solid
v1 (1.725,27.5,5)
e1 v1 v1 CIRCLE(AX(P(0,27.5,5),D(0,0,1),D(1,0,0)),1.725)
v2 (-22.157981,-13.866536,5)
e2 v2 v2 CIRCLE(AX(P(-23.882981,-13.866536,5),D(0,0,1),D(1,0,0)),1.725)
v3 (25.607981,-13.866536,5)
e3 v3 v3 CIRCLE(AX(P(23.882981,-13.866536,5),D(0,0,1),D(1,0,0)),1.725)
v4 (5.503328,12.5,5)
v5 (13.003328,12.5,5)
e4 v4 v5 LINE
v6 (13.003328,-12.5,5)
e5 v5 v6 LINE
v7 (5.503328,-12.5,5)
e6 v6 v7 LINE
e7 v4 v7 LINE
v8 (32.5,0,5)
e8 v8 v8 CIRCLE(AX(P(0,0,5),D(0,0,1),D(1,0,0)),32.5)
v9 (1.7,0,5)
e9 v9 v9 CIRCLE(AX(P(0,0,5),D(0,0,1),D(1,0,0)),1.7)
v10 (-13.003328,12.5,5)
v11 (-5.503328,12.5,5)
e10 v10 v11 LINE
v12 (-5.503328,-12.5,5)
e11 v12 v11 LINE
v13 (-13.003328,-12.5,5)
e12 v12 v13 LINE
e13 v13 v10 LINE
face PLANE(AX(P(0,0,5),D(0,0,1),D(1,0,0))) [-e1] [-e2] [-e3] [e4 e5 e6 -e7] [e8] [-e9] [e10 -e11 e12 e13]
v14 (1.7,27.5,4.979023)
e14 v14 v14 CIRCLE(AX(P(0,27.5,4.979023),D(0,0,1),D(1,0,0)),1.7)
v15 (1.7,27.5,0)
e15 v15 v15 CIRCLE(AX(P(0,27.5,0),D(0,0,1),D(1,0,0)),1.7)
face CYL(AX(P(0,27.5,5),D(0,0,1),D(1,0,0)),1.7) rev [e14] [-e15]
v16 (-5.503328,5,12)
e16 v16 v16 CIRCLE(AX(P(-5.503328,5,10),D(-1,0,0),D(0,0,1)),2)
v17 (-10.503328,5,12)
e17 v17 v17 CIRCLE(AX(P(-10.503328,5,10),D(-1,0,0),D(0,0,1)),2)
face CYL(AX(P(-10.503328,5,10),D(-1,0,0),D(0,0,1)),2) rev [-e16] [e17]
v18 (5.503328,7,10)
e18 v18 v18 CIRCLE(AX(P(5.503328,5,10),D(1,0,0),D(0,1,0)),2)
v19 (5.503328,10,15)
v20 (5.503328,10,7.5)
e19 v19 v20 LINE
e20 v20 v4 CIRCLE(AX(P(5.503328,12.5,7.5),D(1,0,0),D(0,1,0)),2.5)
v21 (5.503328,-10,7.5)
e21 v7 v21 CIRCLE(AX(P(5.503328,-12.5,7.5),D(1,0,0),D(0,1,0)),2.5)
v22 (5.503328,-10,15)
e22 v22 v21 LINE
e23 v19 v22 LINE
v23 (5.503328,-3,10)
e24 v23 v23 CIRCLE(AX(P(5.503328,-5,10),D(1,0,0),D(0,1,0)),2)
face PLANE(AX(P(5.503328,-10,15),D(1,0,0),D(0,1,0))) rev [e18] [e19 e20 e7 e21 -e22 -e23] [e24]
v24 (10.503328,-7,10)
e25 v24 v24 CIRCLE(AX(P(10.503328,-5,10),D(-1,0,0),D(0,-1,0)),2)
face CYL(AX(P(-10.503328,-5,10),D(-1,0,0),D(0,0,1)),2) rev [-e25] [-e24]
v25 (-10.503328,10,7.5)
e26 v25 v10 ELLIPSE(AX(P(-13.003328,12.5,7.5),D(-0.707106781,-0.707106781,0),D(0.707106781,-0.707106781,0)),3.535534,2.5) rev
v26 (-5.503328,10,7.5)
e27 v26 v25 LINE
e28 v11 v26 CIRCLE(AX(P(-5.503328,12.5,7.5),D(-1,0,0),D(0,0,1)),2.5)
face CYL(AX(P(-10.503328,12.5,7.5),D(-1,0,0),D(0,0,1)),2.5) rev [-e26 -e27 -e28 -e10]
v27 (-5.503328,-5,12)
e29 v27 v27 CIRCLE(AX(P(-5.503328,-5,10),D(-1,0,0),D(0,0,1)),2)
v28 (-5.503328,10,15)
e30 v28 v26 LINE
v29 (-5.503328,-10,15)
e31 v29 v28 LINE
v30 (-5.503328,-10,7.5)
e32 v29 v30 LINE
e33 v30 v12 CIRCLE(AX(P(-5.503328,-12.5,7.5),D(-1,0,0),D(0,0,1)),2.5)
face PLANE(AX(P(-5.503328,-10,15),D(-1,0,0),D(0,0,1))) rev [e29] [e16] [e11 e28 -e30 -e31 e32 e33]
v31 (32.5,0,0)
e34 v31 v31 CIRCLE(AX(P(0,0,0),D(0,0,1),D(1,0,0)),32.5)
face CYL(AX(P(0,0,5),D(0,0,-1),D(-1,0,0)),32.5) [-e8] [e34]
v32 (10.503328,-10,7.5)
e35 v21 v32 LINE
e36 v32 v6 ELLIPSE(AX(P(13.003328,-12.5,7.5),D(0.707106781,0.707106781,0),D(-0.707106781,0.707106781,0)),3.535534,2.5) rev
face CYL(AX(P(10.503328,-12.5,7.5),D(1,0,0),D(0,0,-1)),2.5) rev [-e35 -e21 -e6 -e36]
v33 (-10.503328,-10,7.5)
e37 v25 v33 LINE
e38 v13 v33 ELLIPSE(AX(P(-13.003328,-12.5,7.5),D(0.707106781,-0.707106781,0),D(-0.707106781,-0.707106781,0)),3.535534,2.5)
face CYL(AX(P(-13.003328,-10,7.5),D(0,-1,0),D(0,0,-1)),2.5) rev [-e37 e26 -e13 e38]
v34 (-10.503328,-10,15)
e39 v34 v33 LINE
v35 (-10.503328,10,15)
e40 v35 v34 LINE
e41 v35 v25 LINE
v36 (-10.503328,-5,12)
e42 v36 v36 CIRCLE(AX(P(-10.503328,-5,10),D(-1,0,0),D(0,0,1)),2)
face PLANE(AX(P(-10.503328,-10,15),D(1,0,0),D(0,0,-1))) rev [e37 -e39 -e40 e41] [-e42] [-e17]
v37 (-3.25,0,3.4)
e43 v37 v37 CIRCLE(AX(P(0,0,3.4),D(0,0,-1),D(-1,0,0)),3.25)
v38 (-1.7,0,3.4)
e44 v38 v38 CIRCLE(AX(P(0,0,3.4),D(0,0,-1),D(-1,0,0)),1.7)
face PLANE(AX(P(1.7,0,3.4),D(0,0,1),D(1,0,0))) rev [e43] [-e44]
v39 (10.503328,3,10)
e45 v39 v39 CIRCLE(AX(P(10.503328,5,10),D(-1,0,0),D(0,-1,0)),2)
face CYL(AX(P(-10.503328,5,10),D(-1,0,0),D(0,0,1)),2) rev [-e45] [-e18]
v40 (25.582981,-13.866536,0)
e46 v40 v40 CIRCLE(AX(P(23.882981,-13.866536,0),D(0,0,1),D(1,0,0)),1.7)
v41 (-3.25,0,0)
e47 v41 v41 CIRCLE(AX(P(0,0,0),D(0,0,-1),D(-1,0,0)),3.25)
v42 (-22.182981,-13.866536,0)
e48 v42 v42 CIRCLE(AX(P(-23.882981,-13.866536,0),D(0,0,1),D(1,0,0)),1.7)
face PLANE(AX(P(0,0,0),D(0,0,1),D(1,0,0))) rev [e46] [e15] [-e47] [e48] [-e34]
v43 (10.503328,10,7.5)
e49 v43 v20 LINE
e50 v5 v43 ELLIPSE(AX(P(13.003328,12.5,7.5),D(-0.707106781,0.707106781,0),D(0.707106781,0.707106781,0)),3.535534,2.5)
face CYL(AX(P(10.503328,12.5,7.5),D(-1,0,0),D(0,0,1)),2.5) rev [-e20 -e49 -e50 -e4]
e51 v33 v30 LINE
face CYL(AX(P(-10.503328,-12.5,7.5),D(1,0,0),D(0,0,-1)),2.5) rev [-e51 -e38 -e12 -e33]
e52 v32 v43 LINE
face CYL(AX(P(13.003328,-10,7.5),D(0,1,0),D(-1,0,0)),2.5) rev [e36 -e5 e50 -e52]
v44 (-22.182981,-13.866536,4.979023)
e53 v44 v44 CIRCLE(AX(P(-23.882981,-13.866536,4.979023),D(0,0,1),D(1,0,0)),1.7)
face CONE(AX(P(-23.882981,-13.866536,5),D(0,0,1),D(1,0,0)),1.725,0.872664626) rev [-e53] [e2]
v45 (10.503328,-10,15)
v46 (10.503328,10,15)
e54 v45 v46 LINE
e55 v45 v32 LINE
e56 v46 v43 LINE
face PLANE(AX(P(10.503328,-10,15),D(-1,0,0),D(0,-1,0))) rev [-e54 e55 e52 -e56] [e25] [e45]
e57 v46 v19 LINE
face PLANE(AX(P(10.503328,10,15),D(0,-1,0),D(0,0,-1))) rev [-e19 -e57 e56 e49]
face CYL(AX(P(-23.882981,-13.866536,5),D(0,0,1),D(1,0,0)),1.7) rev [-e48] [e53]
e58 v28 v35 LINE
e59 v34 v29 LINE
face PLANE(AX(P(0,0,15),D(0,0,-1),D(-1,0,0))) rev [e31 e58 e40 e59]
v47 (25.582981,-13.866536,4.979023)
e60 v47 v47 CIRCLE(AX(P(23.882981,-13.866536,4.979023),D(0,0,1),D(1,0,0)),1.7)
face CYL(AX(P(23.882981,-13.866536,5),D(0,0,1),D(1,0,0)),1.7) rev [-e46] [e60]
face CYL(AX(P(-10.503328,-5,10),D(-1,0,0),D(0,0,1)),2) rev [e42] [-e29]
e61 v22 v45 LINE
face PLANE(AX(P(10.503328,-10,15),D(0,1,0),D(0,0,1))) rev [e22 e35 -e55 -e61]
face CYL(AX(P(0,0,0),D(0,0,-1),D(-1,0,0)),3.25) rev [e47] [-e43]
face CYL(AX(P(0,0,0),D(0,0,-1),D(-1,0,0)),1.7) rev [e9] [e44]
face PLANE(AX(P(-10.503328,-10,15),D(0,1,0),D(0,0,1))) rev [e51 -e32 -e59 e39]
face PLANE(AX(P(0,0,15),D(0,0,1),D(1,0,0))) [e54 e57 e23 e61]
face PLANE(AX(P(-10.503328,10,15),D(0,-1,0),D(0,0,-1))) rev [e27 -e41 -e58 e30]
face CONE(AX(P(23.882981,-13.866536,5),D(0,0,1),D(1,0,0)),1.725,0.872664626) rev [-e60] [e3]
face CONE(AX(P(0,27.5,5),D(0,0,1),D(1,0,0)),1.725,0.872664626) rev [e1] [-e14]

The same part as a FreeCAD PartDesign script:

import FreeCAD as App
import Part
import Sketcher
from FreeCAD import Vector
Q = App.Units.Quantity


def edges_at(feature, points):
    """Names of the edges that pass closest to the given points."""
    edges = feature.Shape.Edges
    near = lambda p: min(range(len(edges)), key=lambda i: edges[i].distToShape(Part.Vertex(*p))[0])
    return sorted({f"Edge{near(p) + 1}" for p in points})

doc = App.newDocument("Part")
params = doc.addObject("Spreadsheet::Sheet", "Params")
for row, (alias, value) in enumerate([
    ("sketch1_diameter", "65 mm"),
    ("pad1_length", "5 mm"),
    ("groove_angle", "360 deg"),
    ("sketch3_width", "5 mm"),
    ("sketch3_height", "20 mm"),
    ("pad2_length", "10 mm"),
    ("sketch4_diameter", "3.4 mm"),
    ("hole_diameter", "3.4 mm"),
    ("hole_cbore_diameter", "6.5 mm"),
    ("hole_cbore_depth", "3.4 mm"),
    ("sketch5_diameter", "4 mm"),
    ("hole2_diameter", "4 mm"),
    ("fillet_radius", "2.5 mm"),
    ("fillet2_radius", "2.5 mm"),
], start=1):
    params.set(f"A{row}", alias)
    params.set(f"B{row}", "=" + value)
    params.setAlias(f"B{row}", alias)

body = doc.addObject("PartDesign::Body", "Body")

# Sketch on XY plane
sketch1 = doc.addObject("Sketcher::SketchObject", "Sketch")
body.addObject(sketch1)
sketch1.AttachmentSupport = (doc.XY_Plane, [""])
sketch1.MapMode = "FlatFace"
sketch1.addGeometry(Part.Circle(Vector(0, 0, 0), Vector(0, 0, 1), 32), False)
sketch1.addConstraint([
    Sketcher.Constraint("Coincident", 0, 3, -1, 1),
    Sketcher.Constraint("Diameter", 0, Q("65 mm")),
])
sketch1.setExpression("Constraints[1]", "Params.sketch1_diameter")
pad1 = doc.addObject("PartDesign::Pad", "Pad")
body.addObject(pad1)
pad1.Profile = sketch1
pad1.setExpression("Length", "Params.pad1_length")

# Sketch on YZ plane
sketch2 = doc.addObject("Sketcher::SketchObject", "Sketch001")
body.addObject(sketch2)
sketch2.AttachmentSupport = (doc.YZ_Plane, [""])
sketch2.MapMode = "FlatFace"
sketch2.addGeometry([
    Part.LineSegment(Vector(27.5, -1.021, 0), Vector(27.5, 5, 0)),  # 0
    Part.LineSegment(Vector(27.5, 5, 0), Vector(25.775, 5, 0)),  # 1
    Part.LineSegment(Vector(25.775, 5, 0), Vector(25.8, 4.979, 0)),  # 2
    Part.LineSegment(Vector(25.8, 4.979, 0), Vector(25.8, 0, 0)),  # 3
    Part.LineSegment(Vector(25.8, 0, 0), Vector(27.5, -1.021, 0)),  # 4
], False)
sketch2.addGeometry(Part.LineSegment(Vector(27.5, 5, 0), Vector(27.5, -1.021, 0)), True)  # axis
sketch2.addConstraint([
    Sketcher.Constraint("Coincident", 0, 2, 1, 1),
    Sketcher.Constraint("Coincident", 1, 2, 2, 1),
    Sketcher.Constraint("Coincident", 2, 2, 3, 1),
    Sketcher.Constraint("Coincident", 3, 2, 4, 1),
    Sketcher.Constraint("Coincident", 4, 2, 0, 1),
    Sketcher.Constraint("Vertical", 0),
    Sketcher.Constraint("Horizontal", 1),
    Sketcher.Constraint("Vertical", 3),
    Sketcher.Constraint("Vertical", 5),
    Sketcher.Constraint("Coincident", 5, 1, 0, 2),
    Sketcher.Constraint("PointOnObject", 3, 2, -1),
    Sketcher.Constraint("Equal", 0, 5),
    Sketcher.Constraint("Angle", 2, Q("-40 deg")),
    Sketcher.Constraint("Angle", 4, Q("-31 deg")),
    Sketcher.Constraint("DistanceY", -1, 1, 0, 2, Q("5 mm")),
    Sketcher.Constraint("DistanceX", -1, 1, 0, 2, Q("27.5 mm")),
    Sketcher.Constraint("DistanceX", -1, 1, 2, 2, Q("25.8 mm")),
    Sketcher.Constraint("DistanceX", 1, 2, 1, 1, Q("1.725 mm")),
])
groove = doc.addObject("PartDesign::Groove", "Groove")
body.addObject(groove)
groove.Profile = sketch2
groove.ReferenceAxis = (sketch2, ["Axis0"])
groove.setExpression("Angle", "Params.groove_angle")
doc.recompute()

datumline = doc.addObject("PartDesign::Line", "DatumLine")
body.addObject(datumline)
datumline.Placement = App.Placement(Vector(0, -0.077691, 0), App.Rotation(Vector(0, 0, 1), Vector(0, 0, 1)))
polarpattern = doc.addObject("PartDesign::PolarPattern", "PolarPattern")
body.addObject(polarpattern)
polarpattern.Originals = [groove]
polarpattern.Axis = (datumline, [""])
polarpattern.Angle = 360
polarpattern.Occurrences = 3
body.Tip = polarpattern

# Sketch on XY plane
sketch3 = doc.addObject("Sketcher::SketchObject", "Sketch002")
body.addObject(sketch3)
sketch3.AttachmentSupport = (doc.XY_Plane, [""])
sketch3.MapMode = "FlatFace"
sketch3.AttachmentOffset = App.Placement(Vector(0, 0, 5), App.Rotation())
sketch3.addGeometry([
    Part.LineSegment(Vector(-11, 10, 0), Vector(-11, -10, 0)),  # 0
    Part.LineSegment(Vector(-11, -10, 0), Vector(-6, -10, 0)),  # 1
    Part.LineSegment(Vector(-6, -10, 0), Vector(-6, 10, 0)),  # 2
    Part.LineSegment(Vector(-6, 10, 0), Vector(-11, 10, 0)),  # 3
    Part.LineSegment(Vector(6, 10, 0), Vector(6, -10, 0)),  # 4
    Part.LineSegment(Vector(6, -10, 0), Vector(11, -10, 0)),  # 5
    Part.LineSegment(Vector(11, -10, 0), Vector(11, 10, 0)),  # 6
    Part.LineSegment(Vector(11, 10, 0), Vector(6, 10, 0)),  # 7
], False)
sketch3.addConstraint([
    Sketcher.Constraint("Coincident", 0, 2, 1, 1),
    Sketcher.Constraint("Coincident", 1, 2, 2, 1),
    Sketcher.Constraint("Coincident", 2, 2, 3, 1),
    Sketcher.Constraint("Coincident", 3, 2, 0, 1),
    Sketcher.Constraint("Coincident", 4, 2, 5, 1),
    Sketcher.Constraint("Coincident", 5, 2, 6, 1),
    Sketcher.Constraint("Coincident", 6, 2, 7, 1),
    Sketcher.Constraint("Coincident", 7, 2, 4, 1),
    Sketcher.Constraint("Vertical", 0),
    Sketcher.Constraint("Horizontal", 1),
    Sketcher.Constraint("Vertical", 2),
    Sketcher.Constraint("Horizontal", 3),
    Sketcher.Constraint("Vertical", 4),
    Sketcher.Constraint("Horizontal", 5),
    Sketcher.Constraint("Vertical", 6),
    Sketcher.Constraint("Horizontal", 7),
    Sketcher.Constraint("Symmetric", 2, 2, 4, 2, -1, 1),
    Sketcher.Constraint("Symmetric", 0, 2, 6, 2, -1, 1),
    Sketcher.Constraint("Horizontal", 1, 2, 4, 2),
    Sketcher.Constraint("DistanceX", 1, 1, 1, 2, Q("5 mm")),
    Sketcher.Constraint("DistanceY", 0, 2, 0, 1, Q("20 mm")),
    Sketcher.Constraint("DistanceX", 0, 2, -1, 1, Q("10.503328 mm")),
])
sketch3.setExpression("Constraints[19]", "Params.sketch3_width")
sketch3.setExpression("Constraints[20]", "Params.sketch3_height")
pad2 = doc.addObject("PartDesign::Pad", "Pad001")
body.addObject(pad2)
pad2.Profile = sketch3
pad2.setExpression("Length", "Params.pad2_length")

# Sketch on XY plane
sketch4 = doc.addObject("Sketcher::SketchObject", "Sketch003")
body.addObject(sketch4)
sketch4.AttachmentSupport = (doc.XY_Plane, [""])
sketch4.MapMode = "FlatFace"
sketch4.addGeometry(Part.Circle(Vector(0, 0, 0), Vector(0, 0, 1), 1.7), False)
sketch4.addConstraint([
    Sketcher.Constraint("Coincident", 0, 3, -1, 1),
    Sketcher.Constraint("Diameter", 0, Q("3.4 mm")),
])
sketch4.setExpression("Constraints[1]", "Params.sketch4_diameter")
doc.recompute()
hole = doc.addObject("PartDesign::Hole", "Hole")
body.addObject(hole)
hole.Profile = sketch4
hole.ThreadType = "None"
hole.setExpression("Diameter", "Params.hole_diameter")
hole.DepthType = "ThroughAll"
hole.HoleCutType = "Counterbore"
hole.setExpression("HoleCutDiameter", "Params.hole_cbore_diameter")
hole.setExpression("HoleCutDepth", "Params.hole_cbore_depth")
hole.Reversed = True

# Sketch on YZ plane
sketch5 = doc.addObject("Sketcher::SketchObject", "Sketch004")
body.addObject(sketch5)
sketch5.AttachmentSupport = (doc.YZ_Plane, [""])
sketch5.MapMode = "FlatFace"
sketch5.AttachmentOffset = App.Placement(Vector(0, 0, -10.503328), App.Rotation())
sketch5.addGeometry([
    Part.Circle(Vector(5, 10, 0), Vector(0, 0, 1), 2),
    Part.Circle(Vector(-5, 10, 0), Vector(0, 0, 1), 2),
], False)
sketch5.addConstraint([
    Sketcher.Constraint("Equal", 0, 1),
    Sketcher.Constraint("Symmetric", 0, 3, 1, 3, -2),
    Sketcher.Constraint("Diameter", 0, Q("4 mm")),
    Sketcher.Constraint("DistanceX", -1, 1, 0, 3, Q("5 mm")),
    Sketcher.Constraint("DistanceY", -1, 1, 0, 3, Q("10 mm")),
])
sketch5.setExpression("Constraints[2]", "Params.sketch5_diameter")
doc.recompute()
hole2 = doc.addObject("PartDesign::Hole", "Hole001")
body.addObject(hole2)
hole2.Profile = sketch5
hole2.ThreadType = "None"
hole2.setExpression("Diameter", "Params.hole2_diameter")
hole2.DepthType = "ThroughAll"
hole2.Reversed = True
doc.recompute()

fillet = doc.addObject("PartDesign::Fillet", "Fillet")
body.addObject(fillet)
fillet.Base = (hole2, edges_at(hole2, [(-10.503, 0, 5), (10.503, 0, 5)]))
fillet.setExpression("Radius", "Params.fillet_radius")
doc.recompute()

fillet2 = doc.addObject("PartDesign::Fillet", "Fillet001")
body.addObject(fillet2)
fillet2.Base = (fillet, edges_at(fillet, [
    (9.253, -10, 5),
    (-9.253, -10, 5),
    (9.253, 10, 5),
    (-9.253, 10, 5),
]))
fillet2.setExpression("Radius", "Params.fillet2_radius")

doc.recompute()
